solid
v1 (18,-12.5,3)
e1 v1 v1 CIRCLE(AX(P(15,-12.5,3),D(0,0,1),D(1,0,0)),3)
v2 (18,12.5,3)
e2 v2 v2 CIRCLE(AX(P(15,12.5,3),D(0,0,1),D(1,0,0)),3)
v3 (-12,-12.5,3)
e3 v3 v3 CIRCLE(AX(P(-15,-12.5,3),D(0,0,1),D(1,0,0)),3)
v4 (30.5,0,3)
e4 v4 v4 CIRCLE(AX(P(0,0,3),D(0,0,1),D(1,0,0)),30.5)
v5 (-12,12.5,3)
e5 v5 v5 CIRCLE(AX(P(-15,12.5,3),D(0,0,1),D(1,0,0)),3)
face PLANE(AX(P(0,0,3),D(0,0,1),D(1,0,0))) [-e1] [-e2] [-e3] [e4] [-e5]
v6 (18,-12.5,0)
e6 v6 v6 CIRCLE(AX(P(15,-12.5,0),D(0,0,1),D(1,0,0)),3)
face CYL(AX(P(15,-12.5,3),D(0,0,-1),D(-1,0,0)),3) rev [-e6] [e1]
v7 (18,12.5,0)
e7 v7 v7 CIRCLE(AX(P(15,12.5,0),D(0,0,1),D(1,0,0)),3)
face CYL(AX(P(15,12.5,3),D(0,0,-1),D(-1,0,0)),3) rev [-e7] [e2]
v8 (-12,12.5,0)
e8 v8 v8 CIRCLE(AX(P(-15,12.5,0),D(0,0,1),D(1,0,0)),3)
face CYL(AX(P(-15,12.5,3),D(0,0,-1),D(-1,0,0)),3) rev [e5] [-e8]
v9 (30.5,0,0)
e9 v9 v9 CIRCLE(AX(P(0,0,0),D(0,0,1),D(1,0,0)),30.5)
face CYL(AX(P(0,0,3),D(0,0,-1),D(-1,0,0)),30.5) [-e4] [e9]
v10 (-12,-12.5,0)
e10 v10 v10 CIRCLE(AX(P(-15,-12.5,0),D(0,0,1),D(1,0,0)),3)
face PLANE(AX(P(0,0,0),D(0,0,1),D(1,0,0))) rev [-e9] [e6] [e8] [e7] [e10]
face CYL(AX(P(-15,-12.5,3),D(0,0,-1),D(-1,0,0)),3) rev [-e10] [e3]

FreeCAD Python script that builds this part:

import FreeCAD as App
import Part
import Sketcher
Q = App.Units.Quantity

doc = App.newDocument("Part")
body = doc.addObject("PartDesign::Body", "Body")

sketch1 = body.newObject("Sketcher::SketchObject", "Sketch")
sketch1.AttachmentSupport = (doc.getObject("XY_Plane"), [""])
sketch1.MapMode = "FlatFace"
sketch1.addGeometry([
    Part.Circle(App.Vector(0, 0, 0), App.Vector(0, 0, 1), 30.5),
    Part.Circle(App.Vector(-15, -12.5, 0), App.Vector(0, 0, 1), 3),
    Part.Circle(App.Vector(15, -12.5, 0), App.Vector(0, 0, 1), 3),
    Part.Circle(App.Vector(-15, 12.5, 0), App.Vector(0, 0, 1), 3),
    Part.Circle(App.Vector(15, 12.5, 0), App.Vector(0, 0, 1), 3),
], False)
sketch1.addConstraint([
    Sketcher.Constraint("Coincident", 0, 3, -1, 1),
    Sketcher.Constraint("Equal", 1, 2),
    Sketcher.Constraint("Equal", 2, 3),
    Sketcher.Constraint("Equal", 3, 4),
    Sketcher.Constraint("Symmetric", 2, 3, 3, 3, -1, 1),
    Sketcher.Constraint("Symmetric", 1, 3, 4, 3, -1, 1),
    Sketcher.Constraint("Symmetric", 1, 3, 2, 3, -2),
    Sketcher.Constraint("Diameter", 0, Q("61 mm")),
    Sketcher.Constraint("Diameter", 1, Q("6 mm")),
    Sketcher.Constraint("DistanceX", 1, 3, -1, 1, Q("15 mm")),
    Sketcher.Constraint("DistanceY", 1, 3, 3, 3, Q("25 mm")),
])
pad1 = body.newObject("PartDesign::Pad", "Pad")
pad1.Profile = sketch1
pad1.Length = 3

doc.recompute()
